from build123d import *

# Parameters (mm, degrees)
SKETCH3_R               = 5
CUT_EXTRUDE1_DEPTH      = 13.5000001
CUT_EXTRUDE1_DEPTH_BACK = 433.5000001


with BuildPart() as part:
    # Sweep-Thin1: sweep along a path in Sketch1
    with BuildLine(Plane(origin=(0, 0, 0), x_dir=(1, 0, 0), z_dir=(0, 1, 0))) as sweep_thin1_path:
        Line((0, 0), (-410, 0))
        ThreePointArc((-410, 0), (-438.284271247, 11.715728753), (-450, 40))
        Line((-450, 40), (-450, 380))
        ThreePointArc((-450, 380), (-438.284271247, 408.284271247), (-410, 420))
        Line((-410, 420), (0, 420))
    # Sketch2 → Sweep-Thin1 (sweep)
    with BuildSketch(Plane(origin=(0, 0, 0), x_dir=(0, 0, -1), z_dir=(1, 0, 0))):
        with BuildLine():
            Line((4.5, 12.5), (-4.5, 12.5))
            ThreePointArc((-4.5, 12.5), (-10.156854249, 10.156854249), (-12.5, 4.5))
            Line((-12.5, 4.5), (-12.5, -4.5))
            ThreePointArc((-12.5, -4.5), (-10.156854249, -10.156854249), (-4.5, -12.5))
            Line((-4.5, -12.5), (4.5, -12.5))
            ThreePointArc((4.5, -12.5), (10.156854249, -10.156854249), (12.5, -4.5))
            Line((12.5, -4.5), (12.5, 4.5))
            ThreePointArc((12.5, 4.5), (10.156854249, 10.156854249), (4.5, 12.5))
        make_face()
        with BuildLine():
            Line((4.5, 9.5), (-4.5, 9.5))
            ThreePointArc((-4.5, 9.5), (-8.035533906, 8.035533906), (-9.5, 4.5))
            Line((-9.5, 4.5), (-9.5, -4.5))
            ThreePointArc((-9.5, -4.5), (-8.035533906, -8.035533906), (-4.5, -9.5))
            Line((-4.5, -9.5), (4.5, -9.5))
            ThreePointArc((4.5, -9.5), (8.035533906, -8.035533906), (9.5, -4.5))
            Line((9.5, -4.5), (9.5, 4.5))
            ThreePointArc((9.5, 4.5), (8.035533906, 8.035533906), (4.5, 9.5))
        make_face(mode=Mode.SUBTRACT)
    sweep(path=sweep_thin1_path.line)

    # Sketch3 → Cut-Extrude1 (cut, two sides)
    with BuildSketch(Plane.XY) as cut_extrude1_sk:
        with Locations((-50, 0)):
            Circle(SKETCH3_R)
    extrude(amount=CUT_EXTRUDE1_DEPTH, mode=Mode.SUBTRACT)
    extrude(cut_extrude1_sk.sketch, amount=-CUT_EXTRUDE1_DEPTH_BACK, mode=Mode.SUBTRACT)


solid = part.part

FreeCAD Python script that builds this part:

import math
import FreeCAD as App
import Part
import Sketcher

doc = App.newDocument("Part")
body = doc.addObject("PartDesign::Body", "Body")

# Sketch on YZ plane
sketch1 = body.newObject("Sketcher::SketchObject", "Sketch")
sketch1.AttachmentSupport = (doc.getObject("YZ_Plane"), [""])
sketch1.MapMode = "FlatFace"
sketch1.addGeometry([
    Part.LineSegment(App.Vector(12, -4, 0), App.Vector(12, 4, 0)),  # 0
    Part.ArcOfCircle(Part.Circle(App.Vector(4, 4, 0), App.Vector(0, 0, 1), 8), math.radians(0), math.radians(90)),  # 1
    Part.LineSegment(App.Vector(4, 12, 0), App.Vector(-4, 12, 0)),  # 2
    Part.ArcOfCircle(Part.Circle(App.Vector(-4, 4, 0), App.Vector(0, 0, 1), 8), math.radians(90), math.radians(180)),  # 3
    Part.LineSegment(App.Vector(-12, 4, 0), App.Vector(-12, -4, 0)),  # 4
    Part.ArcOfCircle(Part.Circle(App.Vector(-4, -4, 0), App.Vector(0, 0, 1), 8), math.radians(-180), math.radians(-90)),  # 5
    Part.LineSegment(App.Vector(-4, -12, 0), App.Vector(4, -12, 0)),  # 6
    Part.ArcOfCircle(Part.Circle(App.Vector(4, -4, 0), App.Vector(0, 0, 1), 8), math.radians(-90), math.radians(0)),  # 7
    Part.LineSegment(App.Vector(10, 4, 0), App.Vector(10, -4, 0)),  # 8
    Part.ArcOfCircle(Part.Circle(App.Vector(4, -4, 0), App.Vector(0, 0, 1), 5), math.radians(-90), math.radians(0)),  # 9
    Part.LineSegment(App.Vector(4, -10, 0), App.Vector(-4, -10, 0)),  # 10
    Part.ArcOfCircle(Part.Circle(App.Vector(-4, -4, 0), App.Vector(0, 0, 1), 5), math.radians(180), math.radians(270)),  # 11
    Part.LineSegment(App.Vector(-10, -4, 0), App.Vector(-10, 4, 0)),  # 12
    Part.ArcOfCircle(Part.Circle(App.Vector(-4, 4, 0), App.Vector(0, 0, 1), 5), math.radians(90), math.radians(180)),  # 13
    Part.LineSegment(App.Vector(-4, 10, 0), App.Vector(4, 10, 0)),  # 14
    Part.ArcOfCircle(Part.Circle(App.Vector(4, 4, 0), App.Vector(0, 0, 1), 5), math.radians(0), math.radians(90)),  # 15
], False)
sketch1.addConstraint([
    Sketcher.Constraint("Tangent", 0, 2, 1, 1),
    Sketcher.Constraint("Tangent", 1, 2, 2, 1),
    Sketcher.Constraint("Tangent", 2, 2, 3, 1),
    Sketcher.Constraint("Tangent", 3, 2, 4, 1),
    Sketcher.Constraint("Tangent", 4, 2, 5, 1),
    Sketcher.Constraint("Tangent", 5, 2, 6, 1),
    Sketcher.Constraint("Tangent", 6, 2, 7, 1),
    Sketcher.Constraint("Tangent", 7, 2, 0, 1),
    Sketcher.Constraint("Tangent", 8, 2, 9, 2),
    Sketcher.Constraint("Tangent", 9, 1, 10, 1),
    Sketcher.Constraint("Tangent", 10, 2, 11, 2),
    Sketcher.Constraint("Tangent", 11, 1, 12, 1),
    Sketcher.Constraint("Tangent", 12, 2, 13, 2),
    Sketcher.Constraint("Tangent", 13, 1, 14, 1),
    Sketcher.Constraint("Tangent", 14, 2, 15, 2),
    Sketcher.Constraint("Tangent", 15, 1, 8, 1),
    Sketcher.Constraint("Vertical", 0),
    Sketcher.Constraint("Horizontal", 2),
    Sketcher.Constraint("Vertical", 4),
    Sketcher.Constraint("Horizontal", 6),
    Sketcher.Constraint("Vertical", 8),
    Sketcher.Constraint("Horizontal", 10),
    Sketcher.Constraint("Vertical", 12),
    Sketcher.Constraint("Horizontal", 14),
    Sketcher.Constraint("Coincident", 9, 3, 7, 3),
    Sketcher.Constraint("Coincident", 11, 3, 5, 3),
    Sketcher.Constraint("Coincident", 13, 3, 3, 3),
    Sketcher.Constraint("Equal", 1, 3),
    Sketcher.Constraint("Equal", 3, 5),
    Sketcher.Constraint("Equal", 5, 7),
    Sketcher.Constraint("Equal", 13, 15),
    Sketcher.Constraint("Symmetric", 1, 3, 5, 3, -1, 1),
    Sketcher.Constraint("Equal", 14, 0),
    Sketcher.Constraint("Radius", 1, 8.0),
    Sketcher.Constraint("Radius", 9, 5.0),
    Sketcher.Constraint("DistanceX", 2, 2, 2, 1, 9.0),
])

# Sketch on XZ plane
sketch2 = body.newObject("Sketcher::SketchObject", "Sketch001")
sketch2.AttachmentSupport = (doc.getObject("XZ_Plane"), [""])
sketch2.MapMode = "FlatFace"
sketch2.addGeometry([
    Part.LineSegment(App.Vector(0, 0, 0), App.Vector(-410, 0, 0)),  # 0
    Part.ArcOfCircle(Part.Circle(App.Vector(-410, -40, 0), App.Vector(0, 0, 1), 40), math.radians(90), math.radians(180)),  # 1
    Part.LineSegment(App.Vector(-450, -40, 0), App.Vector(-450, -380, 0)),  # 2
    Part.ArcOfCircle(Part.Circle(App.Vector(-410, -380, 0), App.Vector(0, 0, 1), 40), math.radians(-180), math.radians(-90)),  # 3
    Part.LineSegment(App.Vector(-410, -420, 0), App.Vector(0, -420, 0)),  # 4
], False)
sketch2.addConstraint([
    Sketcher.Constraint("Tangent", 0, 2, 1, 1),
    Sketcher.Constraint("Tangent", 1, 2, 2, 1),
    Sketcher.Constraint("Tangent", 2, 2, 3, 1),
    Sketcher.Constraint("Tangent", 3, 2, 4, 1),
    Sketcher.Constraint("Horizontal", 0),
    Sketcher.Constraint("Vertical", 2),
    Sketcher.Constraint("Horizontal", 4),
    Sketcher.Constraint("Coincident", 0, 1, -1, 1),
    Sketcher.Constraint("Equal", 1, 3),
    Sketcher.Constraint("PointOnObject", 4, 2, -2),
    Sketcher.Constraint("Radius", 1, 40.0),
    Sketcher.Constraint("DistanceX", 0, 2, 0, 1, 410.0),
    Sketcher.Constraint("DistanceY", 2, 2, 2, 1, 340.0),
])
doc.recompute()

additivepipe = body.newObject("PartDesign::AdditivePipe", "AdditivePipe")
additivepipe.Profile = sketch1
additivepipe.Spine = (sketch2, ["Edge1", "Edge2", "Edge3", "Edge4", "Edge5"])

# Sketch on XY plane
sketch3 = body.newObject("Sketcher::SketchObject", "Sketch002")
sketch3.AttachmentSupport = (doc.getObject("XY_Plane"), [""])
sketch3.MapMode = "FlatFace"
sketch3.addGeometry(Part.Circle(App.Vector(-50, 0, 0), App.Vector(0, 0, 1), 5), False)
sketch3.addConstraint([
    Sketcher.Constraint("PointOnObject", 0, 3, -1),
    Sketcher.Constraint("Diameter", 0, 10.0),
    Sketcher.Constraint("DistanceX", 0, 3, -1, 1, 50.0),
])
pocket1 = body.newObject("PartDesign::Pocket", "Pocket")
pocket1.Profile = sketch3
pocket1.Type = "ThroughAll"
pocket1.Midplane = True

doc.recompute()
